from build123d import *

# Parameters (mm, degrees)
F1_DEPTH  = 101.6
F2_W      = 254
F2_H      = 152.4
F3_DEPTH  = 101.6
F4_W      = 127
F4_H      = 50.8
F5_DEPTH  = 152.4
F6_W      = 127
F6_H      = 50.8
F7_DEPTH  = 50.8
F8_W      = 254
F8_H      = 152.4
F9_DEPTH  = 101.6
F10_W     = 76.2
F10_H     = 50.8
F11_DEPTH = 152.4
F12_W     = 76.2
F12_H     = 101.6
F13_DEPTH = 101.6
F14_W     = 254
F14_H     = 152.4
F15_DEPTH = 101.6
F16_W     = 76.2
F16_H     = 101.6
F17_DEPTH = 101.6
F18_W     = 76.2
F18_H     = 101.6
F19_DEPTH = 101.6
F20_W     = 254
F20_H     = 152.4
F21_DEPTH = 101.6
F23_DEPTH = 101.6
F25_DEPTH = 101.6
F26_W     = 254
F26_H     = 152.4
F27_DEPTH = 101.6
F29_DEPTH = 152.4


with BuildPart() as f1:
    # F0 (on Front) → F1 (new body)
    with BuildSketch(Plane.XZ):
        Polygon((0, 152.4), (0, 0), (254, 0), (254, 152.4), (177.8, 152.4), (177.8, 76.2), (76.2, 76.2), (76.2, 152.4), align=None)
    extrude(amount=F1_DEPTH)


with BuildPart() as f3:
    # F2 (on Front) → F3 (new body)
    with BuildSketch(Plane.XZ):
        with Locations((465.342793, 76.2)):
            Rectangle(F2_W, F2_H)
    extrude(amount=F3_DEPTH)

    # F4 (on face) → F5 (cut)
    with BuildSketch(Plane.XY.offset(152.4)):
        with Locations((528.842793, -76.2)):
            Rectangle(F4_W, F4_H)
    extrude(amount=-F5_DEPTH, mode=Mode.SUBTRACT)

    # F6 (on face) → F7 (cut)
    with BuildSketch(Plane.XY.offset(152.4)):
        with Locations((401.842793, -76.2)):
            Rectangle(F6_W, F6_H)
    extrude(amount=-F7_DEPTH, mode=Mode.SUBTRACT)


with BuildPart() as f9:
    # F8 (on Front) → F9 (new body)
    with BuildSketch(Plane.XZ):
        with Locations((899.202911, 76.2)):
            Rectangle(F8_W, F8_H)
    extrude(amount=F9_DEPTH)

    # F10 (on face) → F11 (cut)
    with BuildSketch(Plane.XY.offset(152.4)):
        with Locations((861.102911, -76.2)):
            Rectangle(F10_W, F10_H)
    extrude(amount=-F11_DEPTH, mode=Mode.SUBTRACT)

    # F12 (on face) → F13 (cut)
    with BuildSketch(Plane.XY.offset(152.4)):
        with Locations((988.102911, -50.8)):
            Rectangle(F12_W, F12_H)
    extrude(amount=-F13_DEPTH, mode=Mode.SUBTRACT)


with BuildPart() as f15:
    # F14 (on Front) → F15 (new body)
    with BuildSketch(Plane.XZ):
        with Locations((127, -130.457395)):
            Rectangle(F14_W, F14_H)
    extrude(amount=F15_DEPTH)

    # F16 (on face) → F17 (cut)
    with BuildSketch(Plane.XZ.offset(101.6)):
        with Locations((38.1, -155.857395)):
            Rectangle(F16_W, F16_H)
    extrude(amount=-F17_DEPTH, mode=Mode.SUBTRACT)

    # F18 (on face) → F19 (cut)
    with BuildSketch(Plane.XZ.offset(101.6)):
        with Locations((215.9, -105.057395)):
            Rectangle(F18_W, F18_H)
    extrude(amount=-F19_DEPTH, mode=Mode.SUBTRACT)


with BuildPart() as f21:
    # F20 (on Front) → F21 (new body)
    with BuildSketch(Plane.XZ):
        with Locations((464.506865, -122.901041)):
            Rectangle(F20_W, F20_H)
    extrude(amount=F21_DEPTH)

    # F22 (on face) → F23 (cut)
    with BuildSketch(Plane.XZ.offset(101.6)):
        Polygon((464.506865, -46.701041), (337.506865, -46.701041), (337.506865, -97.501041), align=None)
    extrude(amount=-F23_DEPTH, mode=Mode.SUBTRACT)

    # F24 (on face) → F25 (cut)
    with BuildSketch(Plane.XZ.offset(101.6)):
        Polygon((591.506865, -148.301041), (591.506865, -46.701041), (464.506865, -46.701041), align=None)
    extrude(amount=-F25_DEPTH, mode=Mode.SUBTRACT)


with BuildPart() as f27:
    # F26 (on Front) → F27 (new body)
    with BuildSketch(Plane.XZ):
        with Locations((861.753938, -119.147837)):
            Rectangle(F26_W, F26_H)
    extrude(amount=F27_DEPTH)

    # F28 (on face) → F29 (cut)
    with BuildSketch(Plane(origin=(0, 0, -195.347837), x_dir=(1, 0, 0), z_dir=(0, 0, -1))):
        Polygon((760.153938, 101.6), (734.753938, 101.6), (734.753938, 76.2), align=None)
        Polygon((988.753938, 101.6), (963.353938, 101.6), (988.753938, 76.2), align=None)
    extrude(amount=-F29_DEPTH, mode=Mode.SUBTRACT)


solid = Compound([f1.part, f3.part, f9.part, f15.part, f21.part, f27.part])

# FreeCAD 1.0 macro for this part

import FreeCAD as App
import Part
import Sketcher
from FreeCAD import Vector
Q = App.Units.Quantity


def add_polygon(sketch, points):
    """Adds a closed chain of lines whose ends are joined by coincident constraints."""
    first, n = sketch.GeometryCount, len(points)
    for a, b in zip(points, points[1:] + points[:1]):
        sketch.addGeometry(Part.LineSegment(App.Vector(*a, 0), App.Vector(*b, 0)), False)
    for i in range(n):
        sketch.addConstraint(Sketcher.Constraint("Coincident", first + i, 2, first + (i + 1) % n, 1))

doc = App.newDocument("Part")
params = doc.addObject("Spreadsheet::Sheet", "Params")
for row, (alias, value) in enumerate([
    ("sketch1_width", "10 in"),
    ("sketch1_width2", "3 in"),
    ("sketch1_height", "6 in"),
    ("pad1_length", "4 in"),
    ("sketch2_width", "10 in"),
    ("sketch2_height", "6 in"),
    ("pad2_length", "4 in"),
    ("sketch3_width", "5 in"),
    ("sketch3_height", "2 in"),
    ("pocket1_length", "6 in"),
    ("sketch4_width", "5 in"),
    ("sketch4_height", "2 in"),
    ("pocket2_length", "2 in"),
    ("sketch5_width", "10 in"),
    ("sketch5_height", "6 in"),
    ("pad3_length", "4 in"),
    ("sketch6_width", "3 in"),
    ("sketch6_height", "2 in"),
    ("pocket3_length", "6 in"),
    ("sketch7_width", "3 in"),
    ("sketch7_height", "4 in"),
    ("pocket4_length", "4 in"),
    ("sketch8_width", "10 in"),
    ("sketch8_height", "6 in"),
    ("pad4_length", "4 in"),
    ("sketch9_width", "3 in"),
    ("sketch9_height", "4 in"),
    ("pocket5_length", "4 in"),
    ("sketch10_width", "3 in"),
    ("sketch10_height", "4 in"),
    ("pocket6_length", "4 in"),
    ("sketch11_width", "10 in"),
    ("sketch11_height", "6 in"),
    ("pad5_length", "4 in"),
    ("sketch12_width", "5 in"),
    ("sketch12_height", "2 in"),
    ("pocket7_length", "4 in"),
    ("sketch13_width", "5 in"),
    ("sketch13_height", "4 in"),
    ("pocket8_length", "4 in"),
    ("sketch14_width", "10 in"),
    ("sketch14_height", "6 in"),
    ("pad6_length", "4 in"),
    ("sketch15_width", "1 in"),
    ("pocket9_length", "6 in"),
], start=1):
    params.set(f"A{row}", alias)
    params.set(f"B{row}", "=" + value)
    params.setAlias(f"B{row}", alias)

body = doc.addObject("PartDesign::Body", "Body")

# Sketch on XZ plane
sketch1 = body.newObject("Sketcher::SketchObject", "Sketch")
sketch1.AttachmentSupport = (doc.getObject("XZ_Plane"), [""])
sketch1.MapMode = "FlatFace"
add_polygon(sketch1, [(0, 152), (0, 0), (254, 0), (254, 152), (178, 152), (178, 76), (76, 76), (76, 152)])  # lines 0-7
sketch1.addConstraint([
    Sketcher.Constraint("Vertical", 0),
    Sketcher.Constraint("Horizontal", 1),
    Sketcher.Constraint("Vertical", 2),
    Sketcher.Constraint("Horizontal", 3),
    Sketcher.Constraint("Vertical", 4),
    Sketcher.Constraint("Horizontal", 5),
    Sketcher.Constraint("Vertical", 6),
    Sketcher.Constraint("Horizontal", 7),
    Sketcher.Constraint("Coincident", 0, 2, -1, 1),
    Sketcher.Constraint("Horizontal", 3, 2, 6, 2),
    Sketcher.Constraint("Equal", 3, 7),
    Sketcher.Constraint("Equal", 7, 4),
    Sketcher.Constraint("DistanceX", 1, 1, 1, 2, Q("10 in")),
    Sketcher.Constraint("DistanceX", 3, 2, 3, 1, Q("3 in")),
    Sketcher.Constraint("DistanceY", 0, 2, 0, 1, Q("6 in")),
])
sketch1.setExpression("Constraints[20]", "Params.sketch1_width")
sketch1.setExpression("Constraints[21]", "Params.sketch1_width2")
sketch1.setExpression("Constraints[22]", "Params.sketch1_height")
pad1 = body.newObject("PartDesign::Pad", "Pad")
pad1.Profile = sketch1
pad1.setExpression("Length", "Params.pad1_length")
body2 = doc.addObject("PartDesign::Body", "Body001")

# Sketch on XZ plane
sketch2 = body2.newObject("Sketcher::SketchObject", "Sketch001")
sketch2.AttachmentSupport = (doc.getObject("XZ_Plane001"), [""])
sketch2.MapMode = "FlatFace"
add_polygon(sketch2, [(338, 152), (338, 0), (592, 0), (592, 152)])  # lines 0-3
sketch2.addConstraint([
    Sketcher.Constraint("Vertical", 0),
    Sketcher.Constraint("Horizontal", 1),
    Sketcher.Constraint("Vertical", 2),
    Sketcher.Constraint("Horizontal", 3),
    Sketcher.Constraint("PointOnObject", 0, 2, -1),
    Sketcher.Constraint("DistanceX", 1, 1, 1, 2, Q("10 in")),
    Sketcher.Constraint("DistanceY", 0, 2, 0, 1, Q("6 in")),
    Sketcher.Constraint("DistanceX", -1, 1, 0, 2, 338.342793),
])
sketch2.setExpression("Constraints[9]", "Params.sketch2_width")
sketch2.setExpression("Constraints[10]", "Params.sketch2_height")
pad2 = body2.newObject("PartDesign::Pad", "Pad001")
pad2.Profile = sketch2
pad2.setExpression("Length", "Params.pad2_length")

# Sketch on XY plane
sketch3 = body2.newObject("Sketcher::SketchObject", "Sketch002")
sketch3.AttachmentSupport = (doc.getObject("XY_Plane001"), [""])
sketch3.MapMode = "FlatFace"
sketch3.AttachmentOffset = App.Placement(Vector(0, 0, 6 * 25.4), App.Rotation())
add_polygon(sketch3, [(465, -51), (465, -102), (592, -102), (592, -51)])  # lines 0-3
sketch3.addConstraint([
    Sketcher.Constraint("Vertical", 0),
    Sketcher.Constraint("Horizontal", 1),
    Sketcher.Constraint("Vertical", 2),
    Sketcher.Constraint("Horizontal", 3),
    Sketcher.Constraint("DistanceX", 1, 1, 1, 2, Q("5 in")),
    Sketcher.Constraint("DistanceY", 0, 2, 0, 1, Q("2 in")),
    Sketcher.Constraint("DistanceY", 0, 2, -1, 1, Q("4 in")),
    Sketcher.Constraint("DistanceX", -1, 1, 0, 2, 465.342793),
])
sketch3.setExpression("Constraints[8]", "Params.sketch3_width")
sketch3.setExpression("Constraints[9]", "Params.sketch3_height")
pocket1 = body2.newObject("PartDesign::Pocket", "Pocket")
pocket1.Profile = sketch3
pocket1.setExpression("Length", "Params.pocket1_length")

# Sketch on XY plane
sketch4 = body2.newObject("Sketcher::SketchObject", "Sketch003")
sketch4.AttachmentSupport = (doc.getObject("XY_Plane001"), [""])
sketch4.MapMode = "FlatFace"
sketch4.AttachmentOffset = App.Placement(Vector(0, 0, 6 * 25.4), App.Rotation())
add_polygon(sketch4, [(338, -51), (338, -102), (465, -102), (465, -51)])  # lines 0-3
sketch4.addConstraint([
    Sketcher.Constraint("Vertical", 0),
    Sketcher.Constraint("Horizontal", 1),
    Sketcher.Constraint("Vertical", 2),
    Sketcher.Constraint("Horizontal", 3),
    Sketcher.Constraint("DistanceX", 1, 1, 1, 2, Q("5 in")),
    Sketcher.Constraint("DistanceY", 0, 2, 0, 1, Q("2 in")),
    Sketcher.Constraint("DistanceY", 0, 2, -1, 1, Q("4 in")),
    Sketcher.Constraint("DistanceX", -1, 1, 0, 2, 338.342793),
])
sketch4.setExpression("Constraints[8]", "Params.sketch4_width")
sketch4.setExpression("Constraints[9]", "Params.sketch4_height")
pocket2 = body2.newObject("PartDesign::Pocket", "Pocket001")
pocket2.Profile = sketch4
pocket2.setExpression("Length", "Params.pocket2_length")
body3 = doc.addObject("PartDesign::Body", "Body002")

# Sketch on XZ plane
sketch5 = body3.newObject("Sketcher::SketchObject", "Sketch004")
sketch5.AttachmentSupport = (doc.getObject("XZ_Plane002"), [""])
sketch5.MapMode = "FlatFace"
add_polygon(sketch5, [(772, 152), (772, 0), (1026, 0), (1026, 152)])  # lines 0-3
sketch5.addConstraint([
    Sketcher.Constraint("Vertical", 0),
    Sketcher.Constraint("Horizontal", 1),
    Sketcher.Constraint("Vertical", 2),
    Sketcher.Constraint("Horizontal", 3),
    Sketcher.Constraint("PointOnObject", 0, 2, -1),
    Sketcher.Constraint("DistanceX", 1, 1, 1, 2, Q("10 in")),
    Sketcher.Constraint("DistanceY", 0, 2, 0, 1, Q("6 in")),
    Sketcher.Constraint("DistanceX", -1, 1, 0, 2, 772.202911),
])
sketch5.setExpression("Constraints[9]", "Params.sketch5_width")
sketch5.setExpression("Constraints[10]", "Params.sketch5_height")
pad3 = body3.newObject("PartDesign::Pad", "Pad002")
pad3.Profile = sketch5
pad3.setExpression("Length", "Params.pad3_length")

# Sketch on XY plane
sketch6 = body3.newObject("Sketcher::SketchObject", "Sketch005")
sketch6.AttachmentSupport = (doc.getObject("XY_Plane002"), [""])
sketch6.MapMode = "FlatFace"
sketch6.AttachmentOffset = App.Placement(Vector(0, 0, 6 * 25.4), App.Rotation())
add_polygon(sketch6, [(823, -51), (823, -102), (899, -102), (899, -51)])  # lines 0-3
sketch6.addConstraint([
    Sketcher.Constraint("Vertical", 0),
    Sketcher.Constraint("Horizontal", 1),
    Sketcher.Constraint("Vertical", 2),
    Sketcher.Constraint("Horizontal", 3),
    Sketcher.Constraint("DistanceX", 1, 1, 1, 2, Q("3 in")),
    Sketcher.Constraint("DistanceY", 0, 2, 0, 1, Q("2 in")),
    Sketcher.Constraint("DistanceY", 0, 2, -1, 1, Q("4 in")),
    Sketcher.Constraint("DistanceX", -1, 1, 0, 2, 823.002911),
])
sketch6.setExpression("Constraints[8]", "Params.sketch6_width")
sketch6.setExpression("Constraints[9]", "Params.sketch6_height")
pocket3 = body3.newObject("PartDesign::Pocket", "Pocket002")
pocket3.Profile = sketch6
pocket3.setExpression("Length", "Params.pocket3_length")

# Sketch on XY plane
sketch7 = body3.newObject("Sketcher::SketchObject", "Sketch006")
sketch7.AttachmentSupport = (doc.getObject("XY_Plane002"), [""])
sketch7.MapMode = "FlatFace"
sketch7.AttachmentOffset = App.Placement(Vector(0, 0, 6 * 25.4), App.Rotation())
add_polygon(sketch7, [(950, 0), (950, -102), (1026, -102), (1026, 0)])  # lines 0-3
sketch7.addConstraint([
    Sketcher.Constraint("Vertical", 0),
    Sketcher.Constraint("Horizontal", 1),
    Sketcher.Constraint("Vertical", 2),
    Sketcher.Constraint("Horizontal", 3),
    Sketcher.Constraint("PointOnObject", 2, 2, -1),
    Sketcher.Constraint("DistanceX", 1, 1, 1, 2, Q("3 in")),
    Sketcher.Constraint("DistanceY", 0, 2, 0, 1, Q("4 in")),
    Sketcher.Constraint("DistanceX", -1, 1, 0, 2, 950.002911),
])
sketch7.setExpression("Constraints[9]", "Params.sketch7_width")
sketch7.setExpression("Constraints[10]", "Params.sketch7_height")
pocket4 = body3.newObject("PartDesign::Pocket", "Pocket003")
pocket4.Profile = sketch7
pocket4.setExpression("Length", "Params.pocket4_length")
body4 = doc.addObject("PartDesign::Body", "Body003")

# Sketch on XZ plane
sketch8 = body4.newObject("Sketcher::SketchObject", "Sketch007")
sketch8.AttachmentSupport = (doc.getObject("XZ_Plane003"), [""])
sketch8.MapMode = "FlatFace"
add_polygon(sketch8, [(0, -54), (0, -207), (254, -207), (254, -54)])  # lines 0-3
sketch8.addConstraint([
    Sketcher.Constraint("Vertical", 0),
    Sketcher.Constraint("Horizontal", 1),
    Sketcher.Constraint("Vertical", 2),
    Sketcher.Constraint("Horizontal", 3),
    Sketcher.Constraint("PointOnObject", 0, 2, -2),
    Sketcher.Constraint("DistanceX", 1, 1, 1, 2, Q("10 in")),
    Sketcher.Constraint("DistanceY", 0, 2, 0, 1, Q("6 in")),
    Sketcher.Constraint("DistanceY", 0, 2, -1, 1, 206.657395),
])
sketch8.setExpression("Constraints[9]", "Params.sketch8_width")
sketch8.setExpression("Constraints[10]", "Params.sketch8_height")
pad4 = body4.newObject("PartDesign::Pad", "Pad003")
pad4.Profile = sketch8
pad4.setExpression("Length", "Params.pad4_length")

# Sketch on XZ plane
sketch9 = body4.newObject("Sketcher::SketchObject", "Sketch008")
sketch9.AttachmentSupport = (doc.getObject("XZ_Plane003"), [""])
sketch9.MapMode = "FlatFace"
sketch9.AttachmentOffset = App.Placement(Vector(0, 0, 4 * 25.4), App.Rotation())
add_polygon(sketch9, [(0, -105), (0, -207), (76, -207), (76, -105)])  # lines 0-3
sketch9.addConstraint([
    Sketcher.Constraint("Vertical", 0),
    Sketcher.Constraint("Horizontal", 1),
    Sketcher.Constraint("Vertical", 2),
    Sketcher.Constraint("Horizontal", 3),
    Sketcher.Constraint("PointOnObject", 0, 2, -2),
    Sketcher.Constraint("DistanceX", 1, 1, 1, 2, Q("3 in")),
    Sketcher.Constraint("DistanceY", 0, 2, 0, 1, Q("4 in")),
    Sketcher.Constraint("DistanceY", 0, 2, -1, 1, 206.657395),
])
sketch9.setExpression("Constraints[9]", "Params.sketch9_width")
sketch9.setExpression("Constraints[10]", "Params.sketch9_height")
pocket5 = body4.newObject("PartDesign::Pocket", "Pocket004")
pocket5.Profile = sketch9
pocket5.setExpression("Length", "Params.pocket5_length")

# Sketch on XZ plane
sketch10 = body4.newObject("Sketcher::SketchObject", "Sketch009")
sketch10.AttachmentSupport = (doc.getObject("XZ_Plane003"), [""])
sketch10.MapMode = "FlatFace"
sketch10.AttachmentOffset = App.Placement(Vector(0, 0, 4 * 25.4), App.Rotation())
add_polygon(sketch10, [(178, -54), (178, -156), (254, -156), (254, -54)])  # lines 0-3
sketch10.addConstraint([
    Sketcher.Constraint("Vertical", 0),
    Sketcher.Constraint("Horizontal", 1),
    Sketcher.Constraint("Vertical", 2),
    Sketcher.Constraint("Horizontal", 3),
    Sketcher.Constraint("DistanceX", 1, 1, 1, 2, Q("3 in")),
    Sketcher.Constraint("DistanceY", 0, 2, 0, 1, Q("4 in")),
    Sketcher.Constraint("DistanceX", -1, 1, 0, 2, Q("7 in")),
    Sketcher.Constraint("DistanceY", 0, 2, -1, 1, 155.857395),
])
sketch10.setExpression("Constraints[8]", "Params.sketch10_width")
sketch10.setExpression("Constraints[9]", "Params.sketch10_height")
pocket6 = body4.newObject("PartDesign::Pocket", "Pocket005")
pocket6.Profile = sketch10
pocket6.setExpression("Length", "Params.pocket6_length")
body5 = doc.addObject("PartDesign::Body", "Body004")

# Sketch on XZ plane
sketch11 = body5.newObject("Sketcher::SketchObject", "Sketch010")
sketch11.AttachmentSupport = (doc.getObject("XZ_Plane004"), [""])
sketch11.MapMode = "FlatFace"
add_polygon(sketch11, [(338, -47), (338, -199), (592, -199), (592, -47)])  # lines 0-3
sketch11.addConstraint([
    Sketcher.Constraint("Vertical", 0),
    Sketcher.Constraint("Horizontal", 1),
    Sketcher.Constraint("Vertical", 2),
    Sketcher.Constraint("Horizontal", 3),
    Sketcher.Constraint("DistanceX", 1, 1, 1, 2, Q("10 in")),
    Sketcher.Constraint("DistanceY", 0, 2, 0, 1, Q("6 in")),
    Sketcher.Constraint("DistanceY", 0, 2, -1, 1, 199.101041),
    Sketcher.Constraint("DistanceX", -1, 1, 0, 2, 337.506865),
])
sketch11.setExpression("Constraints[8]", "Params.sketch11_width")
sketch11.setExpression("Constraints[9]", "Params.sketch11_height")
pad5 = body5.newObject("PartDesign::Pad", "Pad004")
pad5.Profile = sketch11
pad5.setExpression("Length", "Params.pad5_length")

# Sketch on XZ plane
sketch12 = body5.newObject("Sketcher::SketchObject", "Sketch011")
sketch12.AttachmentSupport = (doc.getObject("XZ_Plane004"), [""])
sketch12.MapMode = "FlatFace"
sketch12.AttachmentOffset = App.Placement(Vector(0, 0, 4 * 25.4), App.Rotation())
add_polygon(sketch12, [(465, -47), (338, -47), (338, -98)])  # lines 0-2
sketch12.addConstraint([
    Sketcher.Constraint("Horizontal", 0),
    Sketcher.Constraint("Vertical", 1),
    Sketcher.Constraint("DistanceX", 0, 2, 0, 1, Q("5 in")),
    Sketcher.Constraint("DistanceY", 1, 2, 1, 1, Q("2 in")),
    Sketcher.Constraint("DistanceY", 0, 2, -1, 1, 46.701041),
    Sketcher.Constraint("DistanceX", -1, 1, 0, 2, 337.506865),
])
sketch12.setExpression("Constraints[5]", "Params.sketch12_width")
sketch12.setExpression("Constraints[6]", "Params.sketch12_height")
pocket7 = body5.newObject("PartDesign::Pocket", "Pocket006")
pocket7.Profile = sketch12
pocket7.setExpression("Length", "Params.pocket7_length")

# Sketch on XZ plane
sketch13 = body5.newObject("Sketcher::SketchObject", "Sketch012")
sketch13.AttachmentSupport = (doc.getObject("XZ_Plane004"), [""])
sketch13.MapMode = "FlatFace"
sketch13.AttachmentOffset = App.Placement(Vector(0, 0, 4 * 25.4), App.Rotation())
add_polygon(sketch13, [(592, -148), (592, -47), (465, -47)])  # lines 0-2
sketch13.addConstraint([
    Sketcher.Constraint("Vertical", 0),
    Sketcher.Constraint("Horizontal", 1),
    Sketcher.Constraint("DistanceX", 1, 2, 1, 1, Q("5 in")),
    Sketcher.Constraint("DistanceY", 0, 1, 0, 2, Q("4 in")),
    Sketcher.Constraint("DistanceY", 0, 2, -1, 1, 46.701041),
    Sketcher.Constraint("DistanceX", -1, 1, 0, 2, 591.506865),
])
sketch13.setExpression("Constraints[5]", "Params.sketch13_width")
sketch13.setExpression("Constraints[6]", "Params.sketch13_height")
pocket8 = body5.newObject("PartDesign::Pocket", "Pocket007")
pocket8.Profile = sketch13
pocket8.setExpression("Length", "Params.pocket8_length")
body6 = doc.addObject("PartDesign::Body", "Body005")

# Sketch on XZ plane
sketch14 = body6.newObject("Sketcher::SketchObject", "Sketch013")
sketch14.AttachmentSupport = (doc.getObject("XZ_Plane005"), [""])
sketch14.MapMode = "FlatFace"
add_polygon(sketch14, [(735, -43), (735, -195), (989, -195), (989, -43)])  # lines 0-3
sketch14.addConstraint([
    Sketcher.Constraint("Vertical", 0),
    Sketcher.Constraint("Horizontal", 1),
    Sketcher.Constraint("Vertical", 2),
    Sketcher.Constraint("Horizontal", 3),
    Sketcher.Constraint("DistanceX", 1, 1, 1, 2, Q("10 in")),
    Sketcher.Constraint("DistanceY", 0, 2, 0, 1, Q("6 in")),
    Sketcher.Constraint("DistanceX", -1, 1, 0, 2, 734.753938),
    Sketcher.Constraint("DistanceY", 0, 2, -1, 1, 195.347837),
])
sketch14.setExpression("Constraints[8]", "Params.sketch14_width")
sketch14.setExpression("Constraints[9]", "Params.sketch14_height")
pad6 = body6.newObject("PartDesign::Pad", "Pad005")
pad6.Profile = sketch14
pad6.setExpression("Length", "Params.pad6_length")

# Sketch on XY plane
sketch15 = body6.newObject("Sketcher::SketchObject", "Sketch014")
sketch15.AttachmentSupport = (doc.getObject("XY_Plane005"), [""])
sketch15.MapMode = "FlatFace"
sketch15.AttachmentOffset = App.Placement(Vector(0, 0, -195.347837), App.Rotation())
add_polygon(sketch15, [(760, -102), (735, -102), (735, -76)])  # lines 0-2
add_polygon(sketch15, [(989, -102), (963, -102), (989, -76)])  # lines 3-5
sketch15.addConstraint([
    Sketcher.Constraint("Horizontal", 0),
    Sketcher.Constraint("Vertical", 1),
    Sketcher.Constraint("Horizontal", 3),
    Sketcher.Constraint("Vertical", 5),
    Sketcher.Constraint("Perpendicular", 2, 4),
    Sketcher.Constraint("Horizontal", 2, 2, 3, 2),
    Sketcher.Constraint("Horizontal", 1, 2, 4, 2),
    Sketcher.Constraint("Equal", 0, 3),
    Sketcher.Constraint("DistanceX", 0, 2, 0, 1, Q("1 in")),
    Sketcher.Constraint("DistanceY", 0, 2, -1, 1, Q("4 in")),
    Sketcher.Constraint("DistanceX", 2, 2, 3, 2, Q("8 in")),
    Sketcher.Constraint("DistanceX", -1, 1, 0, 2, 734.753938),
])
sketch15.setExpression("Constraints[14]", "Params.sketch15_width")
pocket9 = body6.newObject("PartDesign::Pocket", "Pocket008")
pocket9.Profile = sketch15
pocket9.setExpression("Length", "Params.pocket9_length")
pocket9.Reversed = True

doc.recompute()
